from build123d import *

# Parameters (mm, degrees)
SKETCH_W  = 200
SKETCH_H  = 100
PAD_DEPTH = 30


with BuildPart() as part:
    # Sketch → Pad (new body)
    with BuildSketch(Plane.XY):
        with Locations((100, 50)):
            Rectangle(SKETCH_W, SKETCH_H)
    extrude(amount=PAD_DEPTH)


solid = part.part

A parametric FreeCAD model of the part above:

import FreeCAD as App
import Part
import Sketcher

V = App.Vector
Q = App.Units.Quantity


def add_polygon(sketch, points):
    """Adds a closed chain of lines whose ends are joined by coincident constraints."""
    first, n = sketch.GeometryCount, len(points)
    for a, b in zip(points, points[1:] + points[:1]):
        sketch.addGeometry(Part.LineSegment(App.Vector(*a, 0), App.Vector(*b, 0)), False)
    for i in range(n):
        sketch.addConstraint(Sketcher.Constraint("Coincident", first + i, 2, first + (i + 1) % n, 1))

doc = App.newDocument("Part")
body = doc.addObject("PartDesign::Body", "Body")

sketch1 = body.newObject("Sketcher::SketchObject", "Sketch")
sketch1.AttachmentSupport = (doc.getObject("XY_Plane"), [""])
sketch1.MapMode = "FlatFace"
add_polygon(sketch1, [(0, 100), (0, 0), (200, 0), (200, 100)])
sketch1.addConstraint([
    Sketcher.Constraint("Vertical", 0),
    Sketcher.Constraint("Horizontal", 1),
    Sketcher.Constraint("Vertical", 2),
    Sketcher.Constraint("Horizontal", 3),
    Sketcher.Constraint("Coincident", 0, 2, -1, 1),
    Sketcher.Constraint("DistanceX", 1, 1, 1, 2, Q("200 mm")),
    Sketcher.Constraint("DistanceY", 0, 2, 0, 1, Q("100 mm")),
])
pad1 = body.newObject("PartDesign::Pad", "Pad")
pad1.Profile = sketch1
pad1.Length = 30

doc.recompute()
